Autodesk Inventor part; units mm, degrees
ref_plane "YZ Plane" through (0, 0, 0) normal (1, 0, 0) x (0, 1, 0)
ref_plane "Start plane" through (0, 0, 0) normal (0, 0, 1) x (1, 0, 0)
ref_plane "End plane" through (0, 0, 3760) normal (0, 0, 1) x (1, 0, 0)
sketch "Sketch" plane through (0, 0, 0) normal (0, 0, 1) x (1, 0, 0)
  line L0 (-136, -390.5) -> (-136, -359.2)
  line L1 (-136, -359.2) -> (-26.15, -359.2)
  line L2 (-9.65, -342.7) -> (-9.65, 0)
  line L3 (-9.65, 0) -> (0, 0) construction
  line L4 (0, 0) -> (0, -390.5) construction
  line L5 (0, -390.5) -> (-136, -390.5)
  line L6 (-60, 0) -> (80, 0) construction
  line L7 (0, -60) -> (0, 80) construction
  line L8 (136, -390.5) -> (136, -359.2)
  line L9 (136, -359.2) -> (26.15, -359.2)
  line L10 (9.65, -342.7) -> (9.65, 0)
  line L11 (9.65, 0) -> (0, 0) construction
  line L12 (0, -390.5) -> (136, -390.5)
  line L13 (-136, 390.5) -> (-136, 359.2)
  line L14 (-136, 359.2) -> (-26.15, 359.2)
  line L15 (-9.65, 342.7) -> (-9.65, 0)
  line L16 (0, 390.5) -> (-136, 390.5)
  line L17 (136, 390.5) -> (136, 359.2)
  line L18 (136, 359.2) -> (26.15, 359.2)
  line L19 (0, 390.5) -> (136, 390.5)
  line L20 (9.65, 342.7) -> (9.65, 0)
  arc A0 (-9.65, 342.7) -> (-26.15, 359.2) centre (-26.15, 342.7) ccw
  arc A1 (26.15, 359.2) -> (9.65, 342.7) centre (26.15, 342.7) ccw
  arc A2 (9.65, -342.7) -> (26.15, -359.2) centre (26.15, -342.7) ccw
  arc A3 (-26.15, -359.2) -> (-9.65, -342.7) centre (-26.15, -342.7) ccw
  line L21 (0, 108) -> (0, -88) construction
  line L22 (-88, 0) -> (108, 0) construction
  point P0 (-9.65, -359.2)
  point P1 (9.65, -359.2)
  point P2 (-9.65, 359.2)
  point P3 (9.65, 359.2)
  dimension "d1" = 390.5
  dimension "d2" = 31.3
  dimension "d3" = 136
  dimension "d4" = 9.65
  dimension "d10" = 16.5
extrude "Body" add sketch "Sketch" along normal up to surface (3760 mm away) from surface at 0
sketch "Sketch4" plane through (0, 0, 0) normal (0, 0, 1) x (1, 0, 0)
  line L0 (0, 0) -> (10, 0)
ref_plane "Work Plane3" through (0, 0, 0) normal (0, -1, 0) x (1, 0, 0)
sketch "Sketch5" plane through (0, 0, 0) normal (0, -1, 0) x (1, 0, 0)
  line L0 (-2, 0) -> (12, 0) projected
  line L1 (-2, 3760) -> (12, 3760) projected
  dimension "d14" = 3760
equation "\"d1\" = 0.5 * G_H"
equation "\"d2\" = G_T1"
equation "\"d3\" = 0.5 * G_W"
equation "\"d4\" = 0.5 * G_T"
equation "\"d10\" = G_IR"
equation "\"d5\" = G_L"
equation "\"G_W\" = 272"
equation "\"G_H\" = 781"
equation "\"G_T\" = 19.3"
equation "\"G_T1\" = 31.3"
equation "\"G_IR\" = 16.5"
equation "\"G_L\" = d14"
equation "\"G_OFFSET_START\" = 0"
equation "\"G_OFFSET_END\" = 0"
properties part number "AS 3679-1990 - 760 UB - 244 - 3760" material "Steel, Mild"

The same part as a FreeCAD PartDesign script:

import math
import FreeCAD as App
import Part
import Sketcher

V = App.Vector

doc = App.newDocument("Part")
params = doc.addObject("Spreadsheet::Sheet", "Params")
for row, (alias, value) in enumerate([
    ("sketch1_radius", "16.5 mm"),
    ("sketch1_height", "31.3 mm"),
    ("pad1_length", "3760 mm"),
], start=1):
    params.set(f"A{row}", alias)
    params.set(f"B{row}", "=" + value)
    params.setAlias(f"B{row}", alias)

body = doc.addObject("PartDesign::Body", "Body")

# Sketch on XY plane
sketch1 = body.newObject("Sketcher::SketchObject", "Sketch")
sketch1.AttachmentSupport = (doc.getObject("XY_Plane"), [""])
sketch1.MapMode = "FlatFace"
sketch1.addGeometry([
    Part.LineSegment(V(-136, -359.2, 0), V(-136, -390.5, 0)),  # 0
    Part.LineSegment(V(-136, -390.5, 0), V(136, -390.5, 0)),  # 1
    Part.LineSegment(V(136, -390.5, 0), V(136, -359.2, 0)),  # 2
    Part.LineSegment(V(136, -359.2, 0), V(26.15, -359.2, 0)),  # 3
    Part.ArcOfCircle(Part.Circle(V(26.15, -342.7, 0), V(0, 0, 1), 16.5), math.radians(180), math.radians(270)),  # 4
    Part.LineSegment(V(9.65, -342.7, 0), V(9.65, 342.7, 0)),  # 5
    Part.ArcOfCircle(Part.Circle(V(26.15, 342.7, 0), V(0, 0, 1), 16.5), math.radians(90), math.radians(180)),  # 6
    Part.LineSegment(V(26.15, 359.2, 0), V(136, 359.2, 0)),  # 7
    Part.LineSegment(V(136, 359.2, 0), V(136, 390.5, 0)),  # 8
    Part.LineSegment(V(136, 390.5, 0), V(-136, 390.5, 0)),  # 9
    Part.LineSegment(V(-136, 390.5, 0), V(-136, 359.2, 0)),  # 10
    Part.LineSegment(V(-136, 359.2, 0), V(-26.15, 359.2, 0)),  # 11
    Part.ArcOfCircle(Part.Circle(V(-26.15, 342.7, 0), V(0, 0, 1), 16.5), math.radians(0), math.radians(90)),  # 12
    Part.LineSegment(V(-9.65, 342.7, 0), V(-9.65, -342.7, 0)),  # 13
    Part.ArcOfCircle(Part.Circle(V(-26.15, -342.7, 0), V(0, 0, 1), 16.5), math.radians(-90), math.radians(0)),  # 14
    Part.LineSegment(V(-26.15, -359.2, 0), V(-136, -359.2, 0)),  # 15
], False)
sketch1.addConstraint([
    Sketcher.Constraint("Coincident", 0, 2, 1, 1),
    Sketcher.Constraint("Coincident", 1, 2, 2, 1),
    Sketcher.Constraint("Coincident", 2, 2, 3, 1),
    Sketcher.Constraint("Tangent", 3, 2, 4, 2),
    Sketcher.Constraint("Tangent", 4, 1, 5, 1),
    Sketcher.Constraint("Tangent", 5, 2, 6, 2),
    Sketcher.Constraint("Tangent", 6, 1, 7, 1),
    Sketcher.Constraint("Coincident", 7, 2, 8, 1),
    Sketcher.Constraint("Coincident", 8, 2, 9, 1),
    Sketcher.Constraint("Coincident", 9, 2, 10, 1),
    Sketcher.Constraint("Coincident", 10, 2, 11, 1),
    Sketcher.Constraint("Tangent", 11, 2, 12, 2),
    Sketcher.Constraint("Tangent", 12, 1, 13, 1),
    Sketcher.Constraint("Tangent", 13, 2, 14, 2),
    Sketcher.Constraint("Tangent", 14, 1, 15, 1),
    Sketcher.Constraint("Coincident", 15, 2, 0, 1),
    Sketcher.Constraint("Vertical", 0),
    Sketcher.Constraint("Horizontal", 1),
    Sketcher.Constraint("Vertical", 2),
    Sketcher.Constraint("Horizontal", 3),
    Sketcher.Constraint("Vertical", 5),
    Sketcher.Constraint("Horizontal", 7),
    Sketcher.Constraint("Vertical", 8),
    Sketcher.Constraint("Horizontal", 9),
    Sketcher.Constraint("Vertical", 10),
    Sketcher.Constraint("Horizontal", 11),
    Sketcher.Constraint("Vertical", 13),
    Sketcher.Constraint("Horizontal", 15),
    Sketcher.Constraint("Equal", 4, 6),
    Sketcher.Constraint("Equal", 6, 12),
    Sketcher.Constraint("Equal", 12, 14),
    Sketcher.Constraint("Symmetric", 4, 3, 12, 3, -1, 1),
    Sketcher.Constraint("Symmetric", 0, 2, 8, 2, -1, 1),
    Sketcher.Constraint("Symmetric", 7, 2, 10, 2, -2),
    Sketcher.Constraint("Symmetric", 2, 2, 15, 2, -2),
    Sketcher.Constraint("Radius", 4, 16.5),
    Sketcher.Constraint("DistanceY", 0, 2, 0, 1, 31.3),
    Sketcher.Constraint("DistanceX", 0, 2, -1, 1, 136.0),
    Sketcher.Constraint("DistanceY", 0, 2, -1, 1, 390.5),
    Sketcher.Constraint("DistanceX", -1, 1, 4, 1, 9.65),
])
sketch1.setExpression("Constraints[35]", "Params.sketch1_radius")
sketch1.setExpression("Constraints[36]", "Params.sketch1_height")
pad1 = body.newObject("PartDesign::Pad", "Pad")
pad1.Profile = sketch1
pad1.setExpression("Length", "Params.pad1_length")

doc.recompute()
